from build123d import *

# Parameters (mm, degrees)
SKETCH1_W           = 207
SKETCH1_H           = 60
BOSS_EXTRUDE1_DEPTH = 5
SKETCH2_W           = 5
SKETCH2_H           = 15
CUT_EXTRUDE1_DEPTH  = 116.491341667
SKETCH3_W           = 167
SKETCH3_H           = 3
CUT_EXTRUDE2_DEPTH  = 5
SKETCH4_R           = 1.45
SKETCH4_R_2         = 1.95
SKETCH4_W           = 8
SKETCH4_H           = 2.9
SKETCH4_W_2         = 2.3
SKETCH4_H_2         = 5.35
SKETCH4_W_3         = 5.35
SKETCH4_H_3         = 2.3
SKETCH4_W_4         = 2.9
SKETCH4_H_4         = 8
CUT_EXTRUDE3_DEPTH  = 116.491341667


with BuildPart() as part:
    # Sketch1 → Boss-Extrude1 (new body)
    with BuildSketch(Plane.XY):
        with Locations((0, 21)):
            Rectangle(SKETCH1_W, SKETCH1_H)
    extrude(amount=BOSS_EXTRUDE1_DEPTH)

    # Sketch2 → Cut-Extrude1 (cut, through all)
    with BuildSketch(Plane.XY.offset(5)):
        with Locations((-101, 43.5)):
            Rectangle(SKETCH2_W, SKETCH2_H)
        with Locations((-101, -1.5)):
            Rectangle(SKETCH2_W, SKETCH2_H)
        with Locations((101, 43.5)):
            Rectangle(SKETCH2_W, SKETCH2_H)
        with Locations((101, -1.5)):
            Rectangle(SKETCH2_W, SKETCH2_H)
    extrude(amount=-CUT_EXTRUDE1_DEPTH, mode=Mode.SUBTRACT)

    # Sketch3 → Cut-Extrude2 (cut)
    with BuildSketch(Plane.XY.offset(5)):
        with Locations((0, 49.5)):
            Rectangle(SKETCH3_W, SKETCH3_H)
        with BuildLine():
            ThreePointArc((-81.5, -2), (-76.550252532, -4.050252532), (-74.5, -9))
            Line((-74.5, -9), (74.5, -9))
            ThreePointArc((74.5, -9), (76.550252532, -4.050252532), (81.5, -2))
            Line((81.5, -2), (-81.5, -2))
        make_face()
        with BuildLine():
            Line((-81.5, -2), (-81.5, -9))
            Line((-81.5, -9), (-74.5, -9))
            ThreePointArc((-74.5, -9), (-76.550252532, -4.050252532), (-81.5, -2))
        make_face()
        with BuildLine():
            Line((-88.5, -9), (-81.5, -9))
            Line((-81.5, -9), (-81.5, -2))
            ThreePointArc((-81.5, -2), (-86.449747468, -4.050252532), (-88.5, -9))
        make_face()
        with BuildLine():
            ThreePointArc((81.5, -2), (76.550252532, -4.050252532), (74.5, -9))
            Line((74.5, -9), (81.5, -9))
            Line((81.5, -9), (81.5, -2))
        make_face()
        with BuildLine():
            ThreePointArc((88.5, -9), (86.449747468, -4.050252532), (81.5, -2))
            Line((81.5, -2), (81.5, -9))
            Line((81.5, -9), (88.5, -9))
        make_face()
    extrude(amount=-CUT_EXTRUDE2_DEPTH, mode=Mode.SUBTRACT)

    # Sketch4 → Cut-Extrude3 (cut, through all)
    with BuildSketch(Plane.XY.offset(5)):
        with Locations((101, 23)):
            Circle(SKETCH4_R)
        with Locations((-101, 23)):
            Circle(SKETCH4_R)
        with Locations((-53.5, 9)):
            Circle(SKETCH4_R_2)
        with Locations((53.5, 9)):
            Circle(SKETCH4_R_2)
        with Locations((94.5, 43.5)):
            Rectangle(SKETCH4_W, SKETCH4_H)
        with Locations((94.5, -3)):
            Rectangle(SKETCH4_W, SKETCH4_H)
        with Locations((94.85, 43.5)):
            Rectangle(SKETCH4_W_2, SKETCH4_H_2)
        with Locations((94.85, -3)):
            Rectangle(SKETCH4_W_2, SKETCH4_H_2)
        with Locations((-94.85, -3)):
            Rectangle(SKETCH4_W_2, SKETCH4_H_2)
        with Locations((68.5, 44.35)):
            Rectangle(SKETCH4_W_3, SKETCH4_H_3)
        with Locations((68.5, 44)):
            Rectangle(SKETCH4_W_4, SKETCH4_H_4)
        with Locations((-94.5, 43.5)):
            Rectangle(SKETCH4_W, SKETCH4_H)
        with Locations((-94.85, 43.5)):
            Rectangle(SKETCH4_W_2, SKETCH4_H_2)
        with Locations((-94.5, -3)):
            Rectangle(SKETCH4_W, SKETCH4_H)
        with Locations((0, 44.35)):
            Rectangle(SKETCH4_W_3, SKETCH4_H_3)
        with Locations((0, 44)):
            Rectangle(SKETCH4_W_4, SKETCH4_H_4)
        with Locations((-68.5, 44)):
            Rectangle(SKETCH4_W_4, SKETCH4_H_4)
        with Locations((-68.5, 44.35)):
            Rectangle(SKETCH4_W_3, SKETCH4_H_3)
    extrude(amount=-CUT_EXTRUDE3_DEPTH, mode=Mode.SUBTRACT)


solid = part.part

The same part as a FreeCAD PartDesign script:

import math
import FreeCAD as App
import Part
import Sketcher

V = App.Vector
Q = App.Units.Quantity

doc = App.newDocument("Part")
body = doc.addObject("PartDesign::Body", "Body")

sketch1 = body.newObject("Sketcher::SketchObject", "Sketch")
sketch1.AttachmentSupport = (doc.getObject("XY_Plane"), [""])
sketch1.MapMode = "FlatFace"
sketch1.addGeometry(Part.LineSegment(V(-104, 51, 0), V(-104, -9, 0)), False)
sketch1.addGeometry(Part.LineSegment(V(-104, -9, 0), V(104, -9, 0)), False)
sketch1.addGeometry(Part.LineSegment(V(104, -9, 0), V(104, 51, 0)), False)
sketch1.addGeometry(Part.LineSegment(V(104, 51, 0), V(-104, 51, 0)), False)
sketch1.addConstraint(Sketcher.Constraint("Coincident", 0, 2, 1, 1))
sketch1.addConstraint(Sketcher.Constraint("Coincident", 1, 2, 2, 1))
sketch1.addConstraint(Sketcher.Constraint("Coincident", 2, 2, 3, 1))
sketch1.addConstraint(Sketcher.Constraint("Coincident", 3, 2, 0, 1))
sketch1.addConstraint(Sketcher.Constraint("Vertical", 0))
sketch1.addConstraint(Sketcher.Constraint("Horizontal", 1))
sketch1.addConstraint(Sketcher.Constraint("Vertical", 2))
sketch1.addConstraint(Sketcher.Constraint("Horizontal", 3))
sketch1.addConstraint(Sketcher.Constraint("DistanceX", 1, 1, 1, 2, Q("207 mm")))
sketch1.addConstraint(Sketcher.Constraint("DistanceY", 0, 2, 0, 1, Q("60 mm")))
sketch1.addConstraint(Sketcher.Constraint("DistanceY", 0, 2, -1, 1, Q("9 mm")))
sketch1.addConstraint(Sketcher.Constraint("DistanceX", 0, 2, -1, 1, Q("103.5 mm")))
pad1 = body.newObject("PartDesign::Pad", "Pad")
pad1.Profile = sketch1
pad1.Length = 5

sketch2 = body.newObject("Sketcher::SketchObject", "Sketch001")
sketch2.AttachmentSupport = (doc.getObject("XY_Plane"), [""])
sketch2.MapMode = "FlatFace"
sketch2.AttachmentOffset = App.Placement(V(0, 0, 5), App.Rotation())
sketch2.addGeometry(Part.LineSegment(V(-104, 51, 0), V(-104, 36, 0)), False)
sketch2.addGeometry(Part.LineSegment(V(-104, 36, 0), V(-98, 36, 0)), False)
sketch2.addGeometry(Part.LineSegment(V(-98, 36, 0), V(-98, 51, 0)), False)
sketch2.addGeometry(Part.LineSegment(V(-98, 51, 0), V(-104, 51, 0)), False)
sketch2.addGeometry(Part.LineSegment(V(-104, 6, 0), V(-104, -9, 0)), False)
sketch2.addGeometry(Part.LineSegment(V(-104, -9, 0), V(-98, -9, 0)), False)
sketch2.addGeometry(Part.LineSegment(V(-98, -9, 0), V(-98, 6, 0)), False)
sketch2.addGeometry(Part.LineSegment(V(-98, 6, 0), V(-104, 6, 0)), False)
sketch2.addGeometry(Part.LineSegment(V(98, 51, 0), V(98, 36, 0)), False)
sketch2.addGeometry(Part.LineSegment(V(98, 36, 0), V(104, 36, 0)), False)
sketch2.addGeometry(Part.LineSegment(V(104, 36, 0), V(104, 51, 0)), False)
sketch2.addGeometry(Part.LineSegment(V(104, 51, 0), V(98, 51, 0)), False)
sketch2.addGeometry(Part.LineSegment(V(98, 6, 0), V(98, -9, 0)), False)
sketch2.addGeometry(Part.LineSegment(V(98, -9, 0), V(104, -9, 0)), False)
sketch2.addGeometry(Part.LineSegment(V(104, -9, 0), V(104, 6, 0)), False)
sketch2.addGeometry(Part.LineSegment(V(104, 6, 0), V(98, 6, 0)), False)
sketch2.addConstraint(Sketcher.Constraint("Coincident", 0, 2, 1, 1))
sketch2.addConstraint(Sketcher.Constraint("Coincident", 1, 2, 2, 1))
sketch2.addConstraint(Sketcher.Constraint("Coincident", 2, 2, 3, 1))
sketch2.addConstraint(Sketcher.Constraint("Coincident", 3, 2, 0, 1))
sketch2.addConstraint(Sketcher.Constraint("Coincident", 4, 2, 5, 1))
sketch2.addConstraint(Sketcher.Constraint("Coincident", 5, 2, 6, 1))
sketch2.addConstraint(Sketcher.Constraint("Coincident", 6, 2, 7, 1))
sketch2.addConstraint(Sketcher.Constraint("Coincident", 7, 2, 4, 1))
sketch2.addConstraint(Sketcher.Constraint("Coincident", 8, 2, 9, 1))
sketch2.addConstraint(Sketcher.Constraint("Coincident", 9, 2, 10, 1))
sketch2.addConstraint(Sketcher.Constraint("Coincident", 10, 2, 11, 1))
sketch2.addConstraint(Sketcher.Constraint("Coincident", 11, 2, 8, 1))
sketch2.addConstraint(Sketcher.Constraint("Coincident", 12, 2, 13, 1))
sketch2.addConstraint(Sketcher.Constraint("Coincident", 13, 2, 14, 1))
sketch2.addConstraint(Sketcher.Constraint("Coincident", 14, 2, 15, 1))
sketch2.addConstraint(Sketcher.Constraint("Coincident", 15, 2, 12, 1))
sketch2.addConstraint(Sketcher.Constraint("Vertical", 0))
sketch2.addConstraint(Sketcher.Constraint("Horizontal", 1))
sketch2.addConstraint(Sketcher.Constraint("Vertical", 2))
sketch2.addConstraint(Sketcher.Constraint("Horizontal", 3))
sketch2.addConstraint(Sketcher.Constraint("Vertical", 4))
sketch2.addConstraint(Sketcher.Constraint("Horizontal", 5))
sketch2.addConstraint(Sketcher.Constraint("Vertical", 6))
sketch2.addConstraint(Sketcher.Constraint("Horizontal", 7))
sketch2.addConstraint(Sketcher.Constraint("Vertical", 8))
sketch2.addConstraint(Sketcher.Constraint("Horizontal", 9))
sketch2.addConstraint(Sketcher.Constraint("Vertical", 10))
sketch2.addConstraint(Sketcher.Constraint("Horizontal", 11))
sketch2.addConstraint(Sketcher.Constraint("Vertical", 12))
sketch2.addConstraint(Sketcher.Constraint("Horizontal", 13))
sketch2.addConstraint(Sketcher.Constraint("Vertical", 14))
sketch2.addConstraint(Sketcher.Constraint("Horizontal", 15))
sketch2.addConstraint(Sketcher.Constraint("Symmetric", 1, 2, 8, 2, -2))
sketch2.addConstraint(Sketcher.Constraint("Symmetric", 3, 2, 10, 2, -2))
sketch2.addConstraint(Sketcher.Constraint("Symmetric", 5, 2, 12, 2, -2))
sketch2.addConstraint(Sketcher.Constraint("Symmetric", 7, 2, 14, 2, -2))
sketch2.addConstraint(Sketcher.Constraint("Vertical", 3, 2, 4, 2))
sketch2.addConstraint(Sketcher.Constraint("Vertical", 2, 2, 5, 2))
sketch2.addConstraint(Sketcher.Constraint("Equal", 2, 4))
sketch2.addConstraint(Sketcher.Constraint("DistanceX", 1, 1, 1, 2, Q("5 mm")))
sketch2.addConstraint(Sketcher.Constraint("DistanceY", 0, 2, 0, 1, Q("15 mm")))
sketch2.addConstraint(Sketcher.Constraint("DistanceY", -1, 1, 0, 2, Q("36 mm")))
sketch2.addConstraint(Sketcher.Constraint("DistanceY", 4, 2, -1, 1, Q("9 mm")))
sketch2.addConstraint(Sketcher.Constraint("DistanceX", 1, 2, 8, 2, Q("197 mm")))
pocket1 = body.newObject("PartDesign::Pocket", "Pocket")
pocket1.Profile = sketch2
pocket1.Type = "ThroughAll"

sketch3 = body.newObject("Sketcher::SketchObject", "Sketch002")
sketch3.AttachmentSupport = (doc.getObject("XY_Plane"), [""])
sketch3.MapMode = "FlatFace"
sketch3.AttachmentOffset = App.Placement(V(0, 0, 5), App.Rotation())
sketch3.addGeometry(Part.LineSegment(V(-83.5, 51, 0), V(-83.5, 48, 0)), False)
sketch3.addGeometry(Part.LineSegment(V(-83.5, 48, 0), V(83.5, 48, 0)), False)
sketch3.addGeometry(Part.LineSegment(V(83.5, 48, 0), V(83.5, 51, 0)), False)
sketch3.addGeometry(Part.LineSegment(V(83.5, 51, 0), V(-83.5, 51, 0)), False)
sketch3.addGeometry(Part.ArcOfCircle(Part.Circle(V(-81.5, -9, 0), V(0, 0, 1), 7), math.radians(90), math.radians(180)), False)
sketch3.addGeometry(Part.LineSegment(V(-88.5, -9, 0), V(88.5, -9, 0)), False)
sketch3.addGeometry(Part.ArcOfCircle(Part.Circle(V(81.5, -9, 0), V(0, 0, 1), 7), math.radians(0), math.radians(90)), False)
sketch3.addGeometry(Part.LineSegment(V(81.5, -2, 0), V(-81.5, -2, 0)), False)
sketch3.addConstraint(Sketcher.Constraint("Coincident", 0, 2, 1, 1))
sketch3.addConstraint(Sketcher.Constraint("Coincident", 1, 2, 2, 1))
sketch3.addConstraint(Sketcher.Constraint("Coincident", 2, 2, 3, 1))
sketch3.addConstraint(Sketcher.Constraint("Coincident", 3, 2, 0, 1))
sketch3.addConstraint(Sketcher.Constraint("Coincident", 4, 2, 5, 1))
sketch3.addConstraint(Sketcher.Constraint("Coincident", 5, 2, 6, 1))
sketch3.addConstraint(Sketcher.Constraint("Tangent", 6, 2, 7, 1))
sketch3.addConstraint(Sketcher.Constraint("Tangent", 7, 2, 4, 1))
sketch3.addConstraint(Sketcher.Constraint("Vertical", 0))
sketch3.addConstraint(Sketcher.Constraint("Horizontal", 1))
sketch3.addConstraint(Sketcher.Constraint("Vertical", 2))
sketch3.addConstraint(Sketcher.Constraint("Horizontal", 3))
sketch3.addConstraint(Sketcher.Constraint("Horizontal", 5))
sketch3.addConstraint(Sketcher.Constraint("Horizontal", 7))
sketch3.addConstraint(Sketcher.Constraint("Equal", 4, 6))
sketch3.addConstraint(Sketcher.Constraint("Horizontal", 6, 3, 4, 2))
sketch3.addConstraint(Sketcher.Constraint("Radius", 4, Q("7 mm")))
sketch3.addConstraint(Sketcher.Constraint("DistanceX", 1, 1, 1, 2, Q("167 mm")))
sketch3.addConstraint(Sketcher.Constraint("DistanceX", 5, 1, 5, 2, Q("177 mm")))
sketch3.addConstraint(Sketcher.Constraint("DistanceY", 0, 2, 0, 1, Q("3 mm")))
sketch3.addConstraint(Sketcher.Constraint("DistanceY", 4, 3, -1, 1, Q("9 mm")))
sketch3.addConstraint(Sketcher.Constraint("DistanceY", -1, 1, 0, 2, Q("48 mm")))
sketch3.addConstraint(Sketcher.Constraint("DistanceX", 0, 2, 4, 3, Q("2 mm")))
sketch3.addConstraint(Sketcher.Constraint("DistanceX", 4, 3, -1, 1, Q("81.5 mm")))
pocket2 = body.newObject("PartDesign::Pocket", "Pocket001")
pocket2.Profile = sketch3
pocket2.Length = 5

sketch4 = body.newObject("Sketcher::SketchObject", "Sketch003")
sketch4.AttachmentSupport = (doc.getObject("XY_Plane"), [""])
sketch4.MapMode = "FlatFace"
sketch4.AttachmentOffset = App.Placement(V(0, 0, 5), App.Rotation())
sketch4.addGeometry(Part.Circle(V(101, 23, 0), V(0, 0, 1), 1.4), False)
sketch4.addGeometry(Part.Circle(V(-101, 23, 0), V(0, 0, 1), 1.4), False)
sketch4.addGeometry(Part.Circle(V(-53.5, 9, 0), V(0, 0, 1), 1.9), False)
sketch4.addGeometry(Part.Circle(V(53.5, 9, 0), V(0, 0, 1), 1.9), False)
sketch4.addGeometry(Part.LineSegment(V(90.5, 45, 0), V(90.5, 42, 0)), False)
sketch4.addGeometry(Part.LineSegment(V(90.5, 42, 0), V(93.7, 42, 0)), False)
sketch4.addGeometry(Part.LineSegment(V(93.7, 42, 0), V(93.7, 40.8, 0)), False)
sketch4.addGeometry(Part.LineSegment(V(93.7, 40.8, 0), V(96, 40.8, 0)), False)
sketch4.addGeometry(Part.LineSegment(V(96, 40.8, 0), V(96, 42, 0)), False)
sketch4.addGeometry(Part.LineSegment(V(96, 42, 0), V(98.5, 42, 0)), False)
sketch4.addGeometry(Part.LineSegment(V(98.5, 42, 0), V(98.5, 45, 0)), False)
sketch4.addGeometry(Part.LineSegment(V(98.5, 45, 0), V(96, 45, 0)), False)
sketch4.addGeometry(Part.LineSegment(V(96, 45, 0), V(96, 46.2, 0)), False)
sketch4.addGeometry(Part.LineSegment(V(96, 46.2, 0), V(93.7, 46.2, 0)), False)
sketch4.addGeometry(Part.LineSegment(V(93.7, 46.2, 0), V(93.7, 45, 0)), False)
sketch4.addGeometry(Part.LineSegment(V(93.7, 45, 0), V(90.5, 45, 0)), False)
sketch4.addGeometry(Part.LineSegment(V(90.5, -1.6, 0), V(90.5, -4.5, 0)), False)
sketch4.addGeometry(Part.LineSegment(V(90.5, -4.5, 0), V(93.7, -4.5, 0)), False)
sketch4.addGeometry(Part.LineSegment(V(93.7, -4.5, 0), V(93.7, -5.7, 0)), False)
sketch4.addGeometry(Part.LineSegment(V(93.7, -5.7, 0), V(96, -5.7, 0)), False)
sketch4.addGeometry(Part.LineSegment(V(96, -5.7, 0), V(96, -4.5, 0)), False)
sketch4.addGeometry(Part.LineSegment(V(96, -4.5, 0), V(98.5, -4.5, 0)), False)
sketch4.addGeometry(Part.LineSegment(V(98.5, -4.5, 0), V(98.5, -1.6, 0)), False)
sketch4.addGeometry(Part.LineSegment(V(98.5, -1.6, 0), V(96, -1.6, 0)), False)
sketch4.addGeometry(Part.LineSegment(V(96, -1.6, 0), V(96, -0.3, 0)), False)
sketch4.addGeometry(Part.LineSegment(V(96, -0.3, 0), V(93.7, -0.3, 0)), False)
sketch4.addGeometry(Part.LineSegment(V(93.7, -0.3, 0), V(93.7, -1.6, 0)), False)
sketch4.addGeometry(Part.LineSegment(V(93.7, -1.6, 0), V(90.5, -1.6, 0)), False)
sketch4.addGeometry(Part.LineSegment(V(-96, -4.5, 0), V(-96, -5.7, 0)), False)
sketch4.addGeometry(Part.LineSegment(V(-96, -5.7, 0), V(-93.7, -5.7, 0)), False)
sketch4.addGeometry(Part.LineSegment(V(-93.7, -5.7, 0), V(-93.7, -4.5, 0)), False)
sketch4.addGeometry(Part.LineSegment(V(-93.7, -4.5, 0), V(-90.5, -4.5, 0)), False)
sketch4.addGeometry(Part.LineSegment(V(-90.5, -4.5, 0), V(-90.5, -1.6, 0)), False)
sketch4.addGeometry(Part.LineSegment(V(-90.5, -1.6, 0), V(-93.7, -1.6, 0)), False)
sketch4.addGeometry(Part.LineSegment(V(-93.7, -1.6, 0), V(-93.7, -0.3, 0)), False)
sketch4.addGeometry(Part.LineSegment(V(-93.7, -0.3, 0), V(-96, -0.3, 0)), False)
sketch4.addGeometry(Part.LineSegment(V(-96, -0.3, 0), V(-96, -1.6, 0)), False)
sketch4.addGeometry(Part.LineSegment(V(-96, -1.6, 0), V(-98.5, -1.6, 0)), False)
sketch4.addGeometry(Part.LineSegment(V(-98.5, -1.6, 0), V(-98.5, -4.5, 0)), False)
sketch4.addGeometry(Part.LineSegment(V(-98.5, -4.5, 0), V(-96, -4.5, 0)), False)
sketch4.addGeometry(Part.LineSegment(V(65.8, 45.5, 0), V(65.8, 43.2, 0)), False)
sketch4.addGeometry(Part.LineSegment(V(65.8, 43.2, 0), V(67, 43.2, 0)), False)
sketch4.addGeometry(Part.LineSegment(V(67, 43.2, 0), V(67, 40, 0)), False)
sketch4.addGeometry(Part.LineSegment(V(67, 40, 0), V(70, 40, 0)), False)
sketch4.addGeometry(Part.LineSegment(V(70, 40, 0), V(70, 43.2, 0)), False)
sketch4.addGeometry(Part.LineSegment(V(70, 43.2, 0), V(71.2, 43.2, 0)), False)
sketch4.addGeometry(Part.LineSegment(V(71.2, 43.2, 0), V(71.2, 45.5, 0)), False)
sketch4.addGeometry(Part.LineSegment(V(71.2, 45.5, 0), V(70, 45.5, 0)), False)
sketch4.addGeometry(Part.LineSegment(V(70, 45.5, 0), V(70, 48, 0)), False)
sketch4.addGeometry(Part.LineSegment(V(70, 48, 0), V(67, 48, 0)), False)
sketch4.addGeometry(Part.LineSegment(V(67, 48, 0), V(67, 45.5, 0)), False)
sketch4.addGeometry(Part.LineSegment(V(67, 45.5, 0), V(65.8, 45.5, 0)), False)
sketch4.addGeometry(Part.LineSegment(V(-98.5, 45, 0), V(-98.5, 42, 0)), False)
sketch4.addGeometry(Part.LineSegment(V(-98.5, 42, 0), V(-96, 42, 0)), False)
sketch4.addGeometry(Part.LineSegment(V(-96, 42, 0), V(-96, 40.8, 0)), False)
sketch4.addGeometry(Part.LineSegment(V(-96, 40.8, 0), V(-93.7, 40.8, 0)), False)
sketch4.addGeometry(Part.LineSegment(V(-93.7, 40.8, 0), V(-93.7, 42, 0)), False)
sketch4.addGeometry(Part.LineSegment(V(-93.7, 42, 0), V(-90.5, 42, 0)), False)
sketch4.addGeometry(Part.LineSegment(V(-90.5, 42, 0), V(-90.5, 45, 0)), False)
sketch4.addGeometry(Part.LineSegment(V(-90.5, 45, 0), V(-93.7, 45, 0)), False)
sketch4.addGeometry(Part.LineSegment(V(-93.7, 45, 0), V(-93.7, 46.2, 0)), False)
sketch4.addGeometry(Part.LineSegment(V(-93.7, 46.2, 0), V(-96, 46.2, 0)), False)
sketch4.addGeometry(Part.LineSegment(V(-96, 46.2, 0), V(-96, 45, 0)), False)
sketch4.addGeometry(Part.LineSegment(V(-96, 45, 0), V(-98.5, 45, 0)), False)
sketch4.addGeometry(Part.LineSegment(V(-2.7, 45.5, 0), V(-2.7, 43.2, 0)), False)
sketch4.addGeometry(Part.LineSegment(V(-2.7, 43.2, 0), V(-1.4, 43.2, 0)), False)
sketch4.addGeometry(Part.LineSegment(V(-1.4, 43.2, 0), V(-1.4, 40, 0)), False)
sketch4.addGeometry(Part.LineSegment(V(-1.4, 40, 0), V(1.4, 40, 0)), False)
sketch4.addGeometry(Part.LineSegment(V(1.4, 40, 0), V(1.4, 43.2, 0)), False)
sketch4.addGeometry(Part.LineSegment(V(1.4, 43.2, 0), V(2.7, 43.2, 0)), False)
sketch4.addGeometry(Part.LineSegment(V(2.7, 43.2, 0), V(2.7, 45.5, 0)), False)
sketch4.addGeometry(Part.LineSegment(V(2.7, 45.5, 0), V(1.4, 45.5, 0)), False)
sketch4.addGeometry(Part.LineSegment(V(1.4, 45.5, 0), V(1.4, 48, 0)), False)
sketch4.addGeometry(Part.LineSegment(V(1.4, 48, 0), V(-1.4, 48, 0)), False)
sketch4.addGeometry(Part.LineSegment(V(-1.4, 48, 0), V(-1.4, 45.5, 0)), False)
sketch4.addGeometry(Part.LineSegment(V(-1.4, 45.5, 0), V(-2.7, 45.5, 0)), False)
sketch4.addGeometry(Part.LineSegment(V(-70, 43.2, 0), V(-70, 40, 0)), False)
sketch4.addGeometry(Part.LineSegment(V(-70, 40, 0), V(-67, 40, 0)), False)
sketch4.addGeometry(Part.LineSegment(V(-67, 40, 0), V(-67, 43.2, 0)), False)
sketch4.addGeometry(Part.LineSegment(V(-67, 43.2, 0), V(-65.8, 43.2, 0)), False)
sketch4.addGeometry(Part.LineSegment(V(-65.8, 43.2, 0), V(-65.8, 45.5, 0)), False)
sketch4.addGeometry(Part.LineSegment(V(-65.8, 45.5, 0), V(-67, 45.5, 0)), False)
sketch4.addGeometry(Part.LineSegment(V(-67, 45.5, 0), V(-67, 48, 0)), False)
sketch4.addGeometry(Part.LineSegment(V(-67, 48, 0), V(-70, 48, 0)), False)
sketch4.addGeometry(Part.LineSegment(V(-70, 48, 0), V(-70, 45.5, 0)), False)
sketch4.addGeometry(Part.LineSegment(V(-70, 45.5, 0), V(-71.2, 45.5, 0)), False)
sketch4.addGeometry(Part.LineSegment(V(-71.2, 45.5, 0), V(-71.2, 43.2, 0)), False)
sketch4.addGeometry(Part.LineSegment(V(-71.2, 43.2, 0), V(-70, 43.2, 0)), False)
sketch4.addConstraint(Sketcher.Constraint("Coincident", 4, 2, 5, 1))
sketch4.addConstraint(Sketcher.Constraint("Coincident", 5, 2, 6, 1))
sketch4.addConstraint(Sketcher.Constraint("Coincident", 6, 2, 7, 1))
sketch4.addConstraint(Sketcher.Constraint("Coincident", 7, 2, 8, 1))
sketch4.addConstraint(Sketcher.Constraint("Coincident", 8, 2, 9, 1))
sketch4.addConstraint(Sketcher.Constraint("Coincident", 9, 2, 10, 1))
sketch4.addConstraint(Sketcher.Constraint("Coincident", 10, 2, 11, 1))
sketch4.addConstraint(Sketcher.Constraint("Coincident", 11, 2, 12, 1))
sketch4.addConstraint(Sketcher.Constraint("Coincident", 12, 2, 13, 1))
sketch4.addConstraint(Sketcher.Constraint("Coincident", 13, 2, 14, 1))
sketch4.addConstraint(Sketcher.Constraint("Coincident", 14, 2, 15, 1))
sketch4.addConstraint(Sketcher.Constraint("Coincident", 15, 2, 4, 1))
sketch4.addConstraint(Sketcher.Constraint("Coincident", 16, 2, 17, 1))
sketch4.addConstraint(Sketcher.Constraint("Coincident", 17, 2, 18, 1))
sketch4.addConstraint(Sketcher.Constraint("Coincident", 18, 2, 19, 1))
sketch4.addConstraint(Sketcher.Constraint("Coincident", 19, 2, 20, 1))
sketch4.addConstraint(Sketcher.Constraint("Coincident", 20, 2, 21, 1))
sketch4.addConstraint(Sketcher.Constraint("Coincident", 21, 2, 22, 1))
sketch4.addConstraint(Sketcher.Constraint("Coincident", 22, 2, 23, 1))
sketch4.addConstraint(Sketcher.Constraint("Coincident", 23, 2, 24, 1))
sketch4.addConstraint(Sketcher.Constraint("Coincident", 24, 2, 25, 1))
sketch4.addConstraint(Sketcher.Constraint("Coincident", 25, 2, 26, 1))
sketch4.addConstraint(Sketcher.Constraint("Coincident", 26, 2, 27, 1))
sketch4.addConstraint(Sketcher.Constraint("Coincident", 27, 2, 16, 1))
sketch4.addConstraint(Sketcher.Constraint("Coincident", 28, 2, 29, 1))
sketch4.addConstraint(Sketcher.Constraint("Coincident", 29, 2, 30, 1))
sketch4.addConstraint(Sketcher.Constraint("Coincident", 30, 2, 31, 1))
sketch4.addConstraint(Sketcher.Constraint("Coincident", 31, 2, 32, 1))
sketch4.addConstraint(Sketcher.Constraint("Coincident", 32, 2, 33, 1))
sketch4.addConstraint(Sketcher.Constraint("Coincident", 33, 2, 34, 1))
sketch4.addConstraint(Sketcher.Constraint("Coincident", 34, 2, 35, 1))
sketch4.addConstraint(Sketcher.Constraint("Coincident", 35, 2, 36, 1))
sketch4.addConstraint(Sketcher.Constraint("Coincident", 36, 2, 37, 1))
sketch4.addConstraint(Sketcher.Constraint("Coincident", 37, 2, 38, 1))
sketch4.addConstraint(Sketcher.Constraint("Coincident", 38, 2, 39, 1))
sketch4.addConstraint(Sketcher.Constraint("Coincident", 39, 2, 28, 1))
sketch4.addConstraint(Sketcher.Constraint("Coincident", 40, 2, 41, 1))
sketch4.addConstraint(Sketcher.Constraint("Coincident", 41, 2, 42, 1))
sketch4.addConstraint(Sketcher.Constraint("Coincident", 42, 2, 43, 1))
sketch4.addConstraint(Sketcher.Constraint("Coincident", 43, 2, 44, 1))
sketch4.addConstraint(Sketcher.Constraint("Coincident", 44, 2, 45, 1))
sketch4.addConstraint(Sketcher.Constraint("Coincident", 45, 2, 46, 1))
sketch4.addConstraint(Sketcher.Constraint("Coincident", 46, 2, 47, 1))
sketch4.addConstraint(Sketcher.Constraint("Coincident", 47, 2, 48, 1))
sketch4.addConstraint(Sketcher.Constraint("Coincident", 48, 2, 49, 1))
sketch4.addConstraint(Sketcher.Constraint("Coincident", 49, 2, 50, 1))
sketch4.addConstraint(Sketcher.Constraint("Coincident", 50, 2, 51, 1))
sketch4.addConstraint(Sketcher.Constraint("Coincident", 51, 2, 40, 1))
sketch4.addConstraint(Sketcher.Constraint("Coincident", 52, 2, 53, 1))
sketch4.addConstraint(Sketcher.Constraint("Coincident", 53, 2, 54, 1))
sketch4.addConstraint(Sketcher.Constraint("Coincident", 54, 2, 55, 1))
sketch4.addConstraint(Sketcher.Constraint("Coincident", 55, 2, 56, 1))
sketch4.addConstraint(Sketcher.Constraint("Coincident", 56, 2, 57, 1))
sketch4.addConstraint(Sketcher.Constraint("Coincident", 57, 2, 58, 1))
sketch4.addConstraint(Sketcher.Constraint("Coincident", 58, 2, 59, 1))
sketch4.addConstraint(Sketcher.Constraint("Coincident", 59, 2, 60, 1))
sketch4.addConstraint(Sketcher.Constraint("Coincident", 60, 2, 61, 1))
sketch4.addConstraint(Sketcher.Constraint("Coincident", 61, 2, 62, 1))
sketch4.addConstraint(Sketcher.Constraint("Coincident", 62, 2, 63, 1))
sketch4.addConstraint(Sketcher.Constraint("Coincident", 63, 2, 52, 1))
sketch4.addConstraint(Sketcher.Constraint("Coincident", 64, 2, 65, 1))
sketch4.addConstraint(Sketcher.Constraint("Coincident", 65, 2, 66, 1))
sketch4.addConstraint(Sketcher.Constraint("Coincident", 66, 2, 67, 1))
sketch4.addConstraint(Sketcher.Constraint("Coincident", 67, 2, 68, 1))
sketch4.addConstraint(Sketcher.Constraint("Coincident", 68, 2, 69, 1))
sketch4.addConstraint(Sketcher.Constraint("Coincident", 69, 2, 70, 1))
sketch4.addConstraint(Sketcher.Constraint("Coincident", 70, 2, 71, 1))
sketch4.addConstraint(Sketcher.Constraint("Coincident", 71, 2, 72, 1))
sketch4.addConstraint(Sketcher.Constraint("Coincident", 72, 2, 73, 1))
sketch4.addConstraint(Sketcher.Constraint("Coincident", 73, 2, 74, 1))
sketch4.addConstraint(Sketcher.Constraint("Coincident", 74, 2, 75, 1))
sketch4.addConstraint(Sketcher.Constraint("Coincident", 75, 2, 64, 1))
sketch4.addConstraint(Sketcher.Constraint("Coincident", 76, 2, 77, 1))
sketch4.addConstraint(Sketcher.Constraint("Coincident", 77, 2, 78, 1))
sketch4.addConstraint(Sketcher.Constraint("Coincident", 78, 2, 79, 1))
sketch4.addConstraint(Sketcher.Constraint("Coincident", 79, 2, 80, 1))
sketch4.addConstraint(Sketcher.Constraint("Coincident", 80, 2, 81, 1))
sketch4.addConstraint(Sketcher.Constraint("Coincident", 81, 2, 82, 1))
sketch4.addConstraint(Sketcher.Constraint("Coincident", 82, 2, 83, 1))
sketch4.addConstraint(Sketcher.Constraint("Coincident", 83, 2, 84, 1))
sketch4.addConstraint(Sketcher.Constraint("Coincident", 84, 2, 85, 1))
sketch4.addConstraint(Sketcher.Constraint("Coincident", 85, 2, 86, 1))
sketch4.addConstraint(Sketcher.Constraint("Coincident", 86, 2, 87, 1))
sketch4.addConstraint(Sketcher.Constraint("Coincident", 87, 2, 76, 1))
sketch4.addConstraint(Sketcher.Constraint("Vertical", 4))
sketch4.addConstraint(Sketcher.Constraint("Horizontal", 5))
sketch4.addConstraint(Sketcher.Constraint("Vertical", 6))
sketch4.addConstraint(Sketcher.Constraint("Horizontal", 7))
sketch4.addConstraint(Sketcher.Constraint("Vertical", 8))
sketch4.addConstraint(Sketcher.Constraint("Horizontal", 9))
sketch4.addConstraint(Sketcher.Constraint("Vertical", 10))
sketch4.addConstraint(Sketcher.Constraint("Horizontal", 11))
sketch4.addConstraint(Sketcher.Constraint("Vertical", 12))
sketch4.addConstraint(Sketcher.Constraint("Horizontal", 13))
sketch4.addConstraint(Sketcher.Constraint("Vertical", 14))
sketch4.addConstraint(Sketcher.Constraint("Horizontal", 15))
sketch4.addConstraint(Sketcher.Constraint("Vertical", 16))
sketch4.addConstraint(Sketcher.Constraint("Horizontal", 17))
sketch4.addConstraint(Sketcher.Constraint("Vertical", 18))
sketch4.addConstraint(Sketcher.Constraint("Horizontal", 19))
sketch4.addConstraint(Sketcher.Constraint("Vertical", 20))
sketch4.addConstraint(Sketcher.Constraint("Horizontal", 21))
sketch4.addConstraint(Sketcher.Constraint("Vertical", 22))
sketch4.addConstraint(Sketcher.Constraint("Horizontal", 23))
sketch4.addConstraint(Sketcher.Constraint("Vertical", 24))
sketch4.addConstraint(Sketcher.Constraint("Horizontal", 25))
sketch4.addConstraint(Sketcher.Constraint("Vertical", 26))
sketch4.addConstraint(Sketcher.Constraint("Horizontal", 27))
sketch4.addConstraint(Sketcher.Constraint("Vertical", 28))
sketch4.addConstraint(Sketcher.Constraint("Horizontal", 29))
sketch4.addConstraint(Sketcher.Constraint("Vertical", 30))
sketch4.addConstraint(Sketcher.Constraint("Horizontal", 31))
sketch4.addConstraint(Sketcher.Constraint("Vertical", 32))
sketch4.addConstraint(Sketcher.Constraint("Horizontal", 33))
sketch4.addConstraint(Sketcher.Constraint("Vertical", 34))
sketch4.addConstraint(Sketcher.Constraint("Horizontal", 35))
sketch4.addConstraint(Sketcher.Constraint("Vertical", 36))
sketch4.addConstraint(Sketcher.Constraint("Horizontal", 37))
sketch4.addConstraint(Sketcher.Constraint("Vertical", 38))
sketch4.addConstraint(Sketcher.Constraint("Horizontal", 39))
sketch4.addConstraint(Sketcher.Constraint("Vertical", 40))
sketch4.addConstraint(Sketcher.Constraint("Horizontal", 41))
sketch4.addConstraint(Sketcher.Constraint("Vertical", 42))
sketch4.addConstraint(Sketcher.Constraint("Horizontal", 43))
sketch4.addConstraint(Sketcher.Constraint("Vertical", 44))
sketch4.addConstraint(Sketcher.Constraint("Horizontal", 45))
sketch4.addConstraint(Sketcher.Constraint("Vertical", 46))
sketch4.addConstraint(Sketcher.Constraint("Horizontal", 47))
sketch4.addConstraint(Sketcher.Constraint("Vertical", 48))
sketch4.addConstraint(Sketcher.Constraint("Horizontal", 49))
sketch4.addConstraint(Sketcher.Constraint("Vertical", 50))
sketch4.addConstraint(Sketcher.Constraint("Horizontal", 51))
sketch4.addConstraint(Sketcher.Constraint("Vertical", 52))
sketch4.addConstraint(Sketcher.Constraint("Horizontal", 53))
sketch4.addConstraint(Sketcher.Constraint("Vertical", 54))
sketch4.addConstraint(Sketcher.Constraint("Horizontal", 55))
sketch4.addConstraint(Sketcher.Constraint("Vertical", 56))
sketch4.addConstraint(Sketcher.Constraint("Horizontal", 57))
sketch4.addConstraint(Sketcher.Constraint("Vertical", 58))
sketch4.addConstraint(Sketcher.Constraint("Horizontal", 59))
sketch4.addConstraint(Sketcher.Constraint("Vertical", 60))
sketch4.addConstraint(Sketcher.Constraint("Horizontal", 61))
sketch4.addConstraint(Sketcher.Constraint("Vertical", 62))
sketch4.addConstraint(Sketcher.Constraint("Horizontal", 63))
sketch4.addConstraint(Sketcher.Constraint("Vertical", 64))
sketch4.addConstraint(Sketcher.Constraint("Horizontal", 65))
sketch4.addConstraint(Sketcher.Constraint("Vertical", 66))
sketch4.addConstraint(Sketcher.Constraint("Horizontal", 67))
sketch4.addConstraint(Sketcher.Constraint("Vertical", 68))
sketch4.addConstraint(Sketcher.Constraint("Horizontal", 69))
sketch4.addConstraint(Sketcher.Constraint("Vertical", 70))
sketch4.addConstraint(Sketcher.Constraint("Horizontal", 71))
sketch4.addConstraint(Sketcher.Constraint("Vertical", 72))
sketch4.addConstraint(Sketcher.Constraint("Horizontal", 73))
sketch4.addConstraint(Sketcher.Constraint("Vertical", 74))
sketch4.addConstraint(Sketcher.Constraint("Horizontal", 75))
sketch4.addConstraint(Sketcher.Constraint("Vertical", 76))
sketch4.addConstraint(Sketcher.Constraint("Horizontal", 77))
sketch4.addConstraint(Sketcher.Constraint("Vertical", 78))
sketch4.addConstraint(Sketcher.Constraint("Horizontal", 79))
sketch4.addConstraint(Sketcher.Constraint("Vertical", 80))
sketch4.addConstraint(Sketcher.Constraint("Horizontal", 81))
sketch4.addConstraint(Sketcher.Constraint("Vertical", 82))
sketch4.addConstraint(Sketcher.Constraint("Horizontal", 83))
sketch4.addConstraint(Sketcher.Constraint("Vertical", 84))
sketch4.addConstraint(Sketcher.Constraint("Horizontal", 85))
sketch4.addConstraint(Sketcher.Constraint("Vertical", 86))
sketch4.addConstraint(Sketcher.Constraint("Horizontal", 87))
sketch4.addConstraint(Sketcher.Constraint("Equal", 0, 1))
sketch4.addConstraint(Sketcher.Constraint("Equal", 2, 3))
sketch4.addConstraint(Sketcher.Constraint("Symmetric", 0, 3, 1, 3, -2))
sketch4.addConstraint(Sketcher.Constraint("Symmetric", 2, 3, 3, 3, -2))
sketch4.addConstraint(Sketcher.Constraint("Symmetric", 19, 2, 28, 2, -2))
sketch4.addConstraint(Sketcher.Constraint("Symmetric", 17, 2, 30, 2, -2))
sketch4.addConstraint(Sketcher.Constraint("Symmetric", 27, 2, 32, 2, -2))
sketch4.addConstraint(Sketcher.Constraint("Symmetric", 25, 2, 34, 2, -2))
sketch4.addConstraint(Sketcher.Constraint("Symmetric", 23, 2, 36, 2, -2))
sketch4.addConstraint(Sketcher.Constraint("Symmetric", 21, 2, 38, 2, -2))
sketch4.addConstraint(Sketcher.Constraint("Symmetric", 9, 2, 52, 2, -2))
sketch4.addConstraint(Sketcher.Constraint("Symmetric", 7, 2, 54, 2, -2))
sketch4.addConstraint(Sketcher.Constraint("Symmetric", 5, 2, 56, 2, -2))
sketch4.addConstraint(Sketcher.Constraint("Symmetric", 15, 2, 58, 2, -2))
sketch4.addConstraint(Sketcher.Constraint("Symmetric", 13, 2, 60, 2, -2))
sketch4.addConstraint(Sketcher.Constraint("Symmetric", 11, 2, 62, 2, -2))
sketch4.addConstraint(Sketcher.Constraint("Symmetric", 65, 2, 68, 2, -2))
sketch4.addConstraint(Sketcher.Constraint("Symmetric", 71, 2, 74, 2, -2))
sketch4.addConstraint(Sketcher.Constraint("Symmetric", 43, 2, 76, 2, -2))
sketch4.addConstraint(Sketcher.Constraint("Symmetric", 41, 2, 78, 2, -2))
sketch4.addConstraint(Sketcher.Constraint("Symmetric", 51, 2, 80, 2, -2))
sketch4.addConstraint(Sketcher.Constraint("Symmetric", 49, 2, 82, 2, -2))
sketch4.addConstraint(Sketcher.Constraint("Symmetric", 47, 2, 84, 2, -2))
sketch4.addConstraint(Sketcher.Constraint("Symmetric", 45, 2, 86, 2, -2))
sketch4.addConstraint(Sketcher.Constraint("Horizontal", 5, 2, 8, 2))
sketch4.addConstraint(Sketcher.Constraint("Horizontal", 11, 2, 14, 2))
sketch4.addConstraint(Sketcher.Constraint("Horizontal", 17, 2, 20, 2))
sketch4.addConstraint(Sketcher.Constraint("Horizontal", 23, 2, 26, 2))
sketch4.addConstraint(Sketcher.Constraint("Horizontal", 41, 2, 44, 2))
sketch4.addConstraint(Sketcher.Constraint("Horizontal", 47, 2, 50, 2))
sketch4.addConstraint(Sketcher.Constraint("Horizontal", 45, 2, 64, 2))
sketch4.addConstraint(Sketcher.Constraint("Horizontal", 43, 2, 66, 2))
sketch4.addConstraint(Sketcher.Constraint("Horizontal", 51, 2, 70, 2))
sketch4.addConstraint(Sketcher.Constraint("Horizontal", 49, 2, 72, 2))
sketch4.addConstraint(Sketcher.Constraint("Vertical", 8, 2, 11, 2))
sketch4.addConstraint(Sketcher.Constraint("Vertical", 6, 2, 13, 2))
sketch4.addConstraint(Sketcher.Constraint("Vertical", 15, 2, 16, 2))
sketch4.addConstraint(Sketcher.Constraint("Vertical", 14, 2, 17, 2))
sketch4.addConstraint(Sketcher.Constraint("Vertical", 12, 2, 19, 2))
sketch4.addConstraint(Sketcher.Constraint("Vertical", 10, 2, 21, 2))
sketch4.addConstraint(Sketcher.Constraint("Vertical", 20, 2, 23, 2))
sketch4.addConstraint(Sketcher.Constraint("Vertical", 18, 2, 25, 2))
sketch4.addConstraint(Sketcher.Constraint("Vertical", 44, 2, 47, 2))
sketch4.addConstraint(Sketcher.Constraint("Vertical", 42, 2, 49, 2))
sketch4.addConstraint(Sketcher.Constraint("Vertical", 68, 2, 71, 2))
sketch4.addConstraint(Sketcher.Constraint("Equal", 41, 45))
sketch4.addConstraint(Sketcher.Constraint("Equal", 51, 65))
sketch4.addConstraint(Sketcher.Constraint("Equal", 49, 67))
sketch4.addConstraint(Sketcher.Constraint("Equal", 65, 69))
sketch4.addConstraint(Sketcher.Constraint("Equal", 83, 4))
sketch4.addConstraint(Sketcher.Constraint("Equal", 87, 6))
sketch4.addConstraint(Sketcher.Constraint("Equal", 8, 12))
sketch4.addConstraint(Sketcher.Constraint("Equal", 10, 16))
sketch4.addConstraint(Sketcher.Constraint("Equal", 14, 18))
sketch4.addConstraint(Sketcher.Constraint("Equal", 20, 24))
sketch4.addConstraint(Sketcher.Constraint("Equal", 61, 40))
sketch4.addConstraint(Sketcher.Constraint("Equal", 59, 42))
sketch4.addConstraint(Sketcher.Constraint("Equal", 63, 48))
sketch4.addConstraint(Sketcher.Constraint("Diameter", 0, Q("2.9 mm")))
sketch4.addConstraint(Sketcher.Constraint("Diameter", 2, Q("3.9 mm")))
sketch4.addConstraint(Sketcher.Constraint("DistanceX", 5, 1, 5, 2, Q("3.2 mm")))
sketch4.addConstraint(Sketcher.Constraint("DistanceX", 7, 1, 7, 2, Q("2.3 mm")))
sketch4.addConstraint(Sketcher.Constraint("DistanceX", 9, 1, 9, 2, Q("2.5 mm")))
sketch4.addConstraint(Sketcher.Constraint("DistanceX", 43, 1, 43, 2, Q("2.9 mm")))
sketch4.addConstraint(Sketcher.Constraint("DistanceX", -1, 1, 0, 3, Q("101 mm")))
sketch4.addConstraint(Sketcher.Constraint("DistanceY", -1, 1, 0, 3, Q("23 mm")))
sketch4.addConstraint(Sketcher.Constraint("DistanceY", -1, 1, 2, 3, Q("9 mm")))
sketch4.addConstraint(Sketcher.Constraint("DistanceX", -1, 1, 7, 2, Q("96 mm")))
sketch4.addConstraint(Sketcher.Constraint("DistanceY", -1, 1, 42, 2, Q("40 mm")))
sketch4.addConstraint(Sketcher.Constraint("DistanceX", 2, 3, -1, 1, Q("53.5 mm")))
sketch4.addConstraint(Sketcher.Constraint("DistanceX", 41, 1, 41, 2, Q("1.225 mm")))
sketch4.addConstraint(Sketcher.Constraint("DistanceY", -1, 1, 4, 2, Q("42.05 mm")))
sketch4.addConstraint(Sketcher.Constraint("DistanceY", 16, 2, -1, 1, Q("4.45 mm")))
sketch4.addConstraint(Sketcher.Constraint("DistanceX", -1, 1, 41, 2, Q("67.05 mm")))
pocket3 = body.newObject("PartDesign::Pocket", "Pocket002")
pocket3.Profile = sketch4
pocket3.Type = "ThroughAll"

doc.recompute()
